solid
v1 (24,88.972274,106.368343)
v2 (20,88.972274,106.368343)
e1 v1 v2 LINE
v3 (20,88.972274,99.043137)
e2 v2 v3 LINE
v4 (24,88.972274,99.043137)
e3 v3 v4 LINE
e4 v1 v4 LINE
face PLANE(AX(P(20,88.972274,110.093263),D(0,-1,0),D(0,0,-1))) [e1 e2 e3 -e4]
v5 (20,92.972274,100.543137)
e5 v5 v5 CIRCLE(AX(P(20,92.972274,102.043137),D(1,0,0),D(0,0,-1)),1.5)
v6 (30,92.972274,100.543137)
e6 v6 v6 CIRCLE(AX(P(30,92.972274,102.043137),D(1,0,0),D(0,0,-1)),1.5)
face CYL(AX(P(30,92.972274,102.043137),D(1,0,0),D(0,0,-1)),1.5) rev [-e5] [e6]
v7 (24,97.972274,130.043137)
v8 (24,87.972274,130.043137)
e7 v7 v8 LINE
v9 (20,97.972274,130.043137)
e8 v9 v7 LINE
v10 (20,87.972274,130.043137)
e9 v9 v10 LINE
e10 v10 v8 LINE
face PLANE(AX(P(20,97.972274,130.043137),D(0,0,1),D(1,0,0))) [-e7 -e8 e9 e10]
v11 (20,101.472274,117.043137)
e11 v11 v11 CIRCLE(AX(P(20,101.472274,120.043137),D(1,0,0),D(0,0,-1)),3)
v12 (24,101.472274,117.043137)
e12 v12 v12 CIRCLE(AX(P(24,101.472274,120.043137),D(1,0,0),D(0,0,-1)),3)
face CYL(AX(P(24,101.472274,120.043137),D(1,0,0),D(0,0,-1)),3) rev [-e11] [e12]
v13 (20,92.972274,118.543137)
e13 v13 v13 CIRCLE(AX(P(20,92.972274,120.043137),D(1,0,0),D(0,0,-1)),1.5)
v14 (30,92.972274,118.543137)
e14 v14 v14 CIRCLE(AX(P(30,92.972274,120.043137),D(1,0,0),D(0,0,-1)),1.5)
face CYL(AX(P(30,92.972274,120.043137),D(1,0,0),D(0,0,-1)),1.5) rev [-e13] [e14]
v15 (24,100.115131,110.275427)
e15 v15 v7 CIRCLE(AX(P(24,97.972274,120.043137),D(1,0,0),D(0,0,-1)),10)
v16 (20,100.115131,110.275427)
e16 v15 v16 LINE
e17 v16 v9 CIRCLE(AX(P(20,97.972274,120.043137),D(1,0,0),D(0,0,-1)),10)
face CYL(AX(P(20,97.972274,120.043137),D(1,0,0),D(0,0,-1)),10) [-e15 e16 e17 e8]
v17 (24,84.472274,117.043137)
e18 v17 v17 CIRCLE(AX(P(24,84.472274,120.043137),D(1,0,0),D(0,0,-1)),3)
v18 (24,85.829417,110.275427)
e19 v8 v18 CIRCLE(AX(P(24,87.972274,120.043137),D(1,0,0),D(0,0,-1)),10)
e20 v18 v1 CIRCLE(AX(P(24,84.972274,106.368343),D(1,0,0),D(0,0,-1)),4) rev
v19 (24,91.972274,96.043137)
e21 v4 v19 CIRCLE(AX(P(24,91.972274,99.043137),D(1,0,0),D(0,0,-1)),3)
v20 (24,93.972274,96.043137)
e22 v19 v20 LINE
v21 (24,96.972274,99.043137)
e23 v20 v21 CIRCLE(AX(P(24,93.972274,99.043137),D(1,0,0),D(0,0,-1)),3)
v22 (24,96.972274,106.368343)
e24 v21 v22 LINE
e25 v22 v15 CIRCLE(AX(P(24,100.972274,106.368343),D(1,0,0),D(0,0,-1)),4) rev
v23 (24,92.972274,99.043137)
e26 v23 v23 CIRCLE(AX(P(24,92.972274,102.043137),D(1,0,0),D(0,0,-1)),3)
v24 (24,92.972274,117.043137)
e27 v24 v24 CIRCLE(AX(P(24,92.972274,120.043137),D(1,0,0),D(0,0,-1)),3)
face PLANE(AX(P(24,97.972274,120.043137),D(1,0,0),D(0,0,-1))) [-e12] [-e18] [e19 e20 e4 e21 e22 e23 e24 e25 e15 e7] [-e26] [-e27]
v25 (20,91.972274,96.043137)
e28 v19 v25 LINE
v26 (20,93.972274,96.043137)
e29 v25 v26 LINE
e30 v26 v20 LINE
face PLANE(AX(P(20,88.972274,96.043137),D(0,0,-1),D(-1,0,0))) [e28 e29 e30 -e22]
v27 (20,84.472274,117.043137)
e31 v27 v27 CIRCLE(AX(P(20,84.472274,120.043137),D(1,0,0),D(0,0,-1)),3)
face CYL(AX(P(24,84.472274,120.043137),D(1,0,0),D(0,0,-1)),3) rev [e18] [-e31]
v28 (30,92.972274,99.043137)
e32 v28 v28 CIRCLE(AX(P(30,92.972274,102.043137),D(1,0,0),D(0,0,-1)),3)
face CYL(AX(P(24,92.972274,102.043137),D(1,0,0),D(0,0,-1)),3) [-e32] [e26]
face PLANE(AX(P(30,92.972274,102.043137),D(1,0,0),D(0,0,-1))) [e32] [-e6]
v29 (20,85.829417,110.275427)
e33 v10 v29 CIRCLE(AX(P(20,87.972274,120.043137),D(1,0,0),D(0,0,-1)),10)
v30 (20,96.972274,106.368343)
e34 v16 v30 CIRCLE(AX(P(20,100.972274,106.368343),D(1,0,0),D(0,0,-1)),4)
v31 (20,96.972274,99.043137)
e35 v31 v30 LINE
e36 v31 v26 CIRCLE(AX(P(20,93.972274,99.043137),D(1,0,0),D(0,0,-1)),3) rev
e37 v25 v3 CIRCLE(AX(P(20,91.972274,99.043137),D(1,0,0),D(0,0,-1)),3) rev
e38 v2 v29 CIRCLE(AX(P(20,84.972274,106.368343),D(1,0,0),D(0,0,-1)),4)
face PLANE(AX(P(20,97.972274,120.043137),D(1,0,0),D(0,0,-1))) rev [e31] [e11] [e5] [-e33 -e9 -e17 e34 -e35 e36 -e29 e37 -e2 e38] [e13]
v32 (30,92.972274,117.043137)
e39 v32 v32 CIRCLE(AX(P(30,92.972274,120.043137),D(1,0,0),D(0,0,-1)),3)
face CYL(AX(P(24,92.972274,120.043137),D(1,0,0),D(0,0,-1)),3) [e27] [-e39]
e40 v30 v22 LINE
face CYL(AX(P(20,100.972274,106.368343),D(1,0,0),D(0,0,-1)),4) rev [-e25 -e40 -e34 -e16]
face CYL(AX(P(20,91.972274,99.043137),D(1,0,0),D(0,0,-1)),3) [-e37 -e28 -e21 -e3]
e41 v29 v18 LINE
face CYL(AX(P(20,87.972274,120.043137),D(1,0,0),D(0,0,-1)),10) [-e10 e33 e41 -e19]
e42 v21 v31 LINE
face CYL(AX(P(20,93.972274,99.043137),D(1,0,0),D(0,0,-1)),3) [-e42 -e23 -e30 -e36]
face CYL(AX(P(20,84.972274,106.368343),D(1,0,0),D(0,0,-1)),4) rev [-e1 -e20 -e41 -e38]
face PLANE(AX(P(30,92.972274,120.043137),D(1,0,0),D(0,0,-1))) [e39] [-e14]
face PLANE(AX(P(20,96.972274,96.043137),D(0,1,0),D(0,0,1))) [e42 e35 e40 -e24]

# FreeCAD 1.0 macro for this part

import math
import FreeCAD as App
import Part
import Sketcher
Q = App.Units.Quantity


def edges_at(feature, points):
    """Names of the edges that pass closest to the given points."""
    edges = feature.Shape.Edges
    near = lambda p: min(range(len(edges)), key=lambda i: edges[i].distToShape(Part.Vertex(*p))[0])
    return sorted({f"Edge{near(p) + 1}" for p in points})

doc = App.newDocument("Part")
body = doc.addObject("PartDesign::Body", "Body")

# Sketch on YZ plane
sketch1 = body.newObject("Sketcher::SketchObject", "Sketch")
sketch1.AttachmentSupport = (doc.getObject("YZ_Plane"), [""])
sketch1.MapMode = "FlatFace"
sketch1.AttachmentOffset = App.Placement(App.Vector(0, 0, 24), App.Rotation())
sketch1.addGeometry([
    Part.LineSegment(App.Vector(97, 96, 0), App.Vector(97, 110, 0)),  # 0
    Part.ArcOfCircle(Part.Circle(App.Vector(98, 120, 0), App.Vector(0, 0, 1), 10), math.radians(-96), math.radians(90)),  # 1
    Part.LineSegment(App.Vector(98, 130, 0), App.Vector(88, 130, 0)),  # 2
    Part.ArcOfCircle(Part.Circle(App.Vector(88, 120, 0), App.Vector(0, 0, 1), 10), math.radians(90), math.radians(276)),  # 3
    Part.LineSegment(App.Vector(89, 110, 0), App.Vector(89, 96, 0)),  # 4
    Part.LineSegment(App.Vector(89, 96, 0), App.Vector(97, 96, 0)),  # 5
], False)
sketch1.addConstraint([
    Sketcher.Constraint("Coincident", 0, 2, 1, 1),
    Sketcher.Constraint("Tangent", 1, 2, 2, 1),
    Sketcher.Constraint("Tangent", 2, 2, 3, 1),
    Sketcher.Constraint("Coincident", 3, 2, 4, 1),
    Sketcher.Constraint("Coincident", 4, 2, 5, 1),
    Sketcher.Constraint("Coincident", 5, 2, 0, 1),
    Sketcher.Constraint("Vertical", 0),
    Sketcher.Constraint("Horizontal", 2),
    Sketcher.Constraint("Vertical", 4),
    Sketcher.Constraint("Horizontal", 5),
    Sketcher.Constraint("Equal", 1, 3),
    Sketcher.Constraint("Horizontal", 0, 2, 3, 2),
    Sketcher.Constraint("Radius", 1, Q("10 mm")),
    Sketcher.Constraint("DistanceX", 2, 2, 2, 1, Q("10 mm")),
    Sketcher.Constraint("DistanceX", 5, 1, 5, 2, Q("8 mm")),
    Sketcher.Constraint("DistanceY", 4, 2, 3, 3, Q("24 mm")),
    Sketcher.Constraint("DistanceX", -1, 1, 1, 3, Q("97.972274 mm")),
    Sketcher.Constraint("DistanceY", -1, 1, 1, 3, Q("120.043137 mm")),
])
pad1 = body.newObject("PartDesign::Pad", "Pad")
pad1.Profile = sketch1
pad1.Length = 4
pad1.Reversed = True

# Sketch on XY plane
sketch2 = body.newObject("Sketcher::SketchObject", "Sketch001")
sketch2.AttachmentSupport = (doc.getObject("XY_Plane"), [""])
sketch2.MapMode = "FlatFace"
sketch2.AttachmentOffset = App.Placement(App.Vector(0, 0, 102.043137), App.Rotation())
sketch2.addGeometry([
    Part.LineSegment(App.Vector(24, 96, 0), App.Vector(24, 93, 0)),
    Part.LineSegment(App.Vector(24, 93, 0), App.Vector(30, 93, 0)),
    Part.LineSegment(App.Vector(30, 93, 0), App.Vector(30, 96, 0)),
    Part.LineSegment(App.Vector(30, 96, 0), App.Vector(24, 96, 0)),
], False)
sketch2.addGeometry(Part.LineSegment(App.Vector(24, 93, 0), App.Vector(30, 93, 0)), True)  # axis
sketch2.addConstraint([
    Sketcher.Constraint("Coincident", 0, 2, 1, 1),
    Sketcher.Constraint("Coincident", 1, 2, 2, 1),
    Sketcher.Constraint("Coincident", 2, 2, 3, 1),
    Sketcher.Constraint("Coincident", 3, 2, 0, 1),
    Sketcher.Constraint("Vertical", 0),
    Sketcher.Constraint("Horizontal", 1),
    Sketcher.Constraint("Vertical", 2),
    Sketcher.Constraint("Horizontal", 3),
    Sketcher.Constraint("Horizontal", 4),
    Sketcher.Constraint("Coincident", 4, 1, 0, 2),
    Sketcher.Constraint("Vertical", 2, 2, 4, 2),
    Sketcher.Constraint("DistanceX", 1, 1, 1, 2, Q("6 mm")),
    Sketcher.Constraint("DistanceY", 0, 2, 0, 1, Q("3 mm")),
    Sketcher.Constraint("DistanceX", -1, 1, 0, 2, Q("24 mm")),
    Sketcher.Constraint("DistanceY", -1, 1, 0, 2, Q("92.972274 mm")),
])
revolution = body.newObject("PartDesign::Revolution", "Revolution")
revolution.Profile = sketch2
revolution.ReferenceAxis = (sketch2, ["Axis0"])
revolution.Angle = 360

# Sketch on XY plane
sketch3 = body.newObject("Sketcher::SketchObject", "Sketch002")
sketch3.AttachmentSupport = (doc.getObject("XY_Plane"), [""])
sketch3.MapMode = "FlatFace"
sketch3.AttachmentOffset = App.Placement(App.Vector(0, 0, 120.043137), App.Rotation())
sketch3.addGeometry([
    Part.LineSegment(App.Vector(24, 96, 0), App.Vector(24, 93, 0)),
    Part.LineSegment(App.Vector(24, 93, 0), App.Vector(30, 93, 0)),
    Part.LineSegment(App.Vector(30, 93, 0), App.Vector(30, 96, 0)),
    Part.LineSegment(App.Vector(30, 96, 0), App.Vector(24, 96, 0)),
], False)
sketch3.addGeometry(Part.LineSegment(App.Vector(24, 93, 0), App.Vector(30, 93, 0)), True)  # axis
sketch3.addConstraint([
    Sketcher.Constraint("Coincident", 0, 2, 1, 1),
    Sketcher.Constraint("Coincident", 1, 2, 2, 1),
    Sketcher.Constraint("Coincident", 2, 2, 3, 1),
    Sketcher.Constraint("Coincident", 3, 2, 0, 1),
    Sketcher.Constraint("Vertical", 0),
    Sketcher.Constraint("Horizontal", 1),
    Sketcher.Constraint("Vertical", 2),
    Sketcher.Constraint("Horizontal", 3),
    Sketcher.Constraint("Horizontal", 4),
    Sketcher.Constraint("Coincident", 4, 1, 0, 2),
    Sketcher.Constraint("Vertical", 2, 2, 4, 2),
    Sketcher.Constraint("DistanceX", 1, 1, 1, 2, Q("6 mm")),
    Sketcher.Constraint("DistanceY", 0, 2, 0, 1, Q("3 mm")),
    Sketcher.Constraint("DistanceX", -1, 1, 0, 2, Q("24 mm")),
    Sketcher.Constraint("DistanceY", -1, 1, 0, 2, Q("92.972274 mm")),
])
revolution2 = body.newObject("PartDesign::Revolution", "Revolution001")
revolution2.Profile = sketch3
revolution2.ReferenceAxis = (sketch3, ["Axis0"])
revolution2.Angle = 360

# Sketch on YZ plane
sketch4 = body.newObject("Sketcher::SketchObject", "Sketch003")
sketch4.AttachmentSupport = (doc.getObject("YZ_Plane"), [""])
sketch4.MapMode = "FlatFace"
sketch4.AttachmentOffset = App.Placement(App.Vector(0, 0, 30), App.Rotation())
sketch4.addGeometry([
    Part.Circle(App.Vector(93, 120, 0), App.Vector(0, 0, 1), 1.5),
    Part.Circle(App.Vector(93, 102, 0), App.Vector(0, 0, 1), 1.5),
], False)
sketch4.addConstraint([
    Sketcher.Constraint("Equal", 0, 1),
    Sketcher.Constraint("Vertical", 0, 3, 1, 3),
    Sketcher.Constraint("Diameter", 0, Q("3 mm")),
    Sketcher.Constraint("DistanceY", 1, 3, 0, 3, Q("18 mm")),
    Sketcher.Constraint("DistanceX", -1, 1, 0, 3, Q("92.972274 mm")),
    Sketcher.Constraint("DistanceY", -1, 1, 0, 3, Q("120.043137 mm")),
])
doc.recompute()
hole = body.newObject("PartDesign::Hole", "Hole")
hole.Profile = sketch4
hole.ThreadType = "None"
hole.Diameter = 3
hole.DepthType = "ThroughAll"

# Sketch on YZ plane
sketch5 = body.newObject("Sketcher::SketchObject", "Sketch004")
sketch5.AttachmentSupport = (doc.getObject("YZ_Plane"), [""])
sketch5.MapMode = "FlatFace"
sketch5.AttachmentOffset = App.Placement(App.Vector(0, 0, 24), App.Rotation())
sketch5.addGeometry([
    Part.Circle(App.Vector(101.5, 120, 0), App.Vector(0, 0, 1), 3),
    Part.Circle(App.Vector(84.5, 120, 0), App.Vector(0, 0, 1), 3),
], False)
sketch5.addConstraint([
    Sketcher.Constraint("Equal", 0, 1),
    Sketcher.Constraint("Horizontal", 0, 3, 1, 3),
    Sketcher.Constraint("Diameter", 0, Q("6 mm")),
    Sketcher.Constraint("DistanceX", 1, 3, 0, 3, Q("17 mm")),
    Sketcher.Constraint("DistanceX", -1, 1, 0, 3, Q("101.472274 mm")),
    Sketcher.Constraint("DistanceY", -1, 1, 0, 3, Q("120.043137 mm")),
])
doc.recompute()
hole2 = body.newObject("PartDesign::Hole", "Hole001")
hole2.Profile = sketch5
hole2.ThreadType = "None"
hole2.Diameter = 6
hole2.DepthType = "ThroughAll"
doc.recompute()

fillet = body.newObject("PartDesign::Fillet", "Fillet")
fillet.Base = (hole2, edges_at(hole2, [(22, 88.972, 96.043), (22, 96.972, 96.043)]))
fillet.Radius = 3
doc.recompute()

fillet2 = body.newObject("PartDesign::Fillet", "Fillet001")
fillet2.Base = (fillet, edges_at(fillet, [(22, 88.972, 110.093), (22, 96.972, 110.093)]))
fillet2.Radius = 4

doc.recompute()
